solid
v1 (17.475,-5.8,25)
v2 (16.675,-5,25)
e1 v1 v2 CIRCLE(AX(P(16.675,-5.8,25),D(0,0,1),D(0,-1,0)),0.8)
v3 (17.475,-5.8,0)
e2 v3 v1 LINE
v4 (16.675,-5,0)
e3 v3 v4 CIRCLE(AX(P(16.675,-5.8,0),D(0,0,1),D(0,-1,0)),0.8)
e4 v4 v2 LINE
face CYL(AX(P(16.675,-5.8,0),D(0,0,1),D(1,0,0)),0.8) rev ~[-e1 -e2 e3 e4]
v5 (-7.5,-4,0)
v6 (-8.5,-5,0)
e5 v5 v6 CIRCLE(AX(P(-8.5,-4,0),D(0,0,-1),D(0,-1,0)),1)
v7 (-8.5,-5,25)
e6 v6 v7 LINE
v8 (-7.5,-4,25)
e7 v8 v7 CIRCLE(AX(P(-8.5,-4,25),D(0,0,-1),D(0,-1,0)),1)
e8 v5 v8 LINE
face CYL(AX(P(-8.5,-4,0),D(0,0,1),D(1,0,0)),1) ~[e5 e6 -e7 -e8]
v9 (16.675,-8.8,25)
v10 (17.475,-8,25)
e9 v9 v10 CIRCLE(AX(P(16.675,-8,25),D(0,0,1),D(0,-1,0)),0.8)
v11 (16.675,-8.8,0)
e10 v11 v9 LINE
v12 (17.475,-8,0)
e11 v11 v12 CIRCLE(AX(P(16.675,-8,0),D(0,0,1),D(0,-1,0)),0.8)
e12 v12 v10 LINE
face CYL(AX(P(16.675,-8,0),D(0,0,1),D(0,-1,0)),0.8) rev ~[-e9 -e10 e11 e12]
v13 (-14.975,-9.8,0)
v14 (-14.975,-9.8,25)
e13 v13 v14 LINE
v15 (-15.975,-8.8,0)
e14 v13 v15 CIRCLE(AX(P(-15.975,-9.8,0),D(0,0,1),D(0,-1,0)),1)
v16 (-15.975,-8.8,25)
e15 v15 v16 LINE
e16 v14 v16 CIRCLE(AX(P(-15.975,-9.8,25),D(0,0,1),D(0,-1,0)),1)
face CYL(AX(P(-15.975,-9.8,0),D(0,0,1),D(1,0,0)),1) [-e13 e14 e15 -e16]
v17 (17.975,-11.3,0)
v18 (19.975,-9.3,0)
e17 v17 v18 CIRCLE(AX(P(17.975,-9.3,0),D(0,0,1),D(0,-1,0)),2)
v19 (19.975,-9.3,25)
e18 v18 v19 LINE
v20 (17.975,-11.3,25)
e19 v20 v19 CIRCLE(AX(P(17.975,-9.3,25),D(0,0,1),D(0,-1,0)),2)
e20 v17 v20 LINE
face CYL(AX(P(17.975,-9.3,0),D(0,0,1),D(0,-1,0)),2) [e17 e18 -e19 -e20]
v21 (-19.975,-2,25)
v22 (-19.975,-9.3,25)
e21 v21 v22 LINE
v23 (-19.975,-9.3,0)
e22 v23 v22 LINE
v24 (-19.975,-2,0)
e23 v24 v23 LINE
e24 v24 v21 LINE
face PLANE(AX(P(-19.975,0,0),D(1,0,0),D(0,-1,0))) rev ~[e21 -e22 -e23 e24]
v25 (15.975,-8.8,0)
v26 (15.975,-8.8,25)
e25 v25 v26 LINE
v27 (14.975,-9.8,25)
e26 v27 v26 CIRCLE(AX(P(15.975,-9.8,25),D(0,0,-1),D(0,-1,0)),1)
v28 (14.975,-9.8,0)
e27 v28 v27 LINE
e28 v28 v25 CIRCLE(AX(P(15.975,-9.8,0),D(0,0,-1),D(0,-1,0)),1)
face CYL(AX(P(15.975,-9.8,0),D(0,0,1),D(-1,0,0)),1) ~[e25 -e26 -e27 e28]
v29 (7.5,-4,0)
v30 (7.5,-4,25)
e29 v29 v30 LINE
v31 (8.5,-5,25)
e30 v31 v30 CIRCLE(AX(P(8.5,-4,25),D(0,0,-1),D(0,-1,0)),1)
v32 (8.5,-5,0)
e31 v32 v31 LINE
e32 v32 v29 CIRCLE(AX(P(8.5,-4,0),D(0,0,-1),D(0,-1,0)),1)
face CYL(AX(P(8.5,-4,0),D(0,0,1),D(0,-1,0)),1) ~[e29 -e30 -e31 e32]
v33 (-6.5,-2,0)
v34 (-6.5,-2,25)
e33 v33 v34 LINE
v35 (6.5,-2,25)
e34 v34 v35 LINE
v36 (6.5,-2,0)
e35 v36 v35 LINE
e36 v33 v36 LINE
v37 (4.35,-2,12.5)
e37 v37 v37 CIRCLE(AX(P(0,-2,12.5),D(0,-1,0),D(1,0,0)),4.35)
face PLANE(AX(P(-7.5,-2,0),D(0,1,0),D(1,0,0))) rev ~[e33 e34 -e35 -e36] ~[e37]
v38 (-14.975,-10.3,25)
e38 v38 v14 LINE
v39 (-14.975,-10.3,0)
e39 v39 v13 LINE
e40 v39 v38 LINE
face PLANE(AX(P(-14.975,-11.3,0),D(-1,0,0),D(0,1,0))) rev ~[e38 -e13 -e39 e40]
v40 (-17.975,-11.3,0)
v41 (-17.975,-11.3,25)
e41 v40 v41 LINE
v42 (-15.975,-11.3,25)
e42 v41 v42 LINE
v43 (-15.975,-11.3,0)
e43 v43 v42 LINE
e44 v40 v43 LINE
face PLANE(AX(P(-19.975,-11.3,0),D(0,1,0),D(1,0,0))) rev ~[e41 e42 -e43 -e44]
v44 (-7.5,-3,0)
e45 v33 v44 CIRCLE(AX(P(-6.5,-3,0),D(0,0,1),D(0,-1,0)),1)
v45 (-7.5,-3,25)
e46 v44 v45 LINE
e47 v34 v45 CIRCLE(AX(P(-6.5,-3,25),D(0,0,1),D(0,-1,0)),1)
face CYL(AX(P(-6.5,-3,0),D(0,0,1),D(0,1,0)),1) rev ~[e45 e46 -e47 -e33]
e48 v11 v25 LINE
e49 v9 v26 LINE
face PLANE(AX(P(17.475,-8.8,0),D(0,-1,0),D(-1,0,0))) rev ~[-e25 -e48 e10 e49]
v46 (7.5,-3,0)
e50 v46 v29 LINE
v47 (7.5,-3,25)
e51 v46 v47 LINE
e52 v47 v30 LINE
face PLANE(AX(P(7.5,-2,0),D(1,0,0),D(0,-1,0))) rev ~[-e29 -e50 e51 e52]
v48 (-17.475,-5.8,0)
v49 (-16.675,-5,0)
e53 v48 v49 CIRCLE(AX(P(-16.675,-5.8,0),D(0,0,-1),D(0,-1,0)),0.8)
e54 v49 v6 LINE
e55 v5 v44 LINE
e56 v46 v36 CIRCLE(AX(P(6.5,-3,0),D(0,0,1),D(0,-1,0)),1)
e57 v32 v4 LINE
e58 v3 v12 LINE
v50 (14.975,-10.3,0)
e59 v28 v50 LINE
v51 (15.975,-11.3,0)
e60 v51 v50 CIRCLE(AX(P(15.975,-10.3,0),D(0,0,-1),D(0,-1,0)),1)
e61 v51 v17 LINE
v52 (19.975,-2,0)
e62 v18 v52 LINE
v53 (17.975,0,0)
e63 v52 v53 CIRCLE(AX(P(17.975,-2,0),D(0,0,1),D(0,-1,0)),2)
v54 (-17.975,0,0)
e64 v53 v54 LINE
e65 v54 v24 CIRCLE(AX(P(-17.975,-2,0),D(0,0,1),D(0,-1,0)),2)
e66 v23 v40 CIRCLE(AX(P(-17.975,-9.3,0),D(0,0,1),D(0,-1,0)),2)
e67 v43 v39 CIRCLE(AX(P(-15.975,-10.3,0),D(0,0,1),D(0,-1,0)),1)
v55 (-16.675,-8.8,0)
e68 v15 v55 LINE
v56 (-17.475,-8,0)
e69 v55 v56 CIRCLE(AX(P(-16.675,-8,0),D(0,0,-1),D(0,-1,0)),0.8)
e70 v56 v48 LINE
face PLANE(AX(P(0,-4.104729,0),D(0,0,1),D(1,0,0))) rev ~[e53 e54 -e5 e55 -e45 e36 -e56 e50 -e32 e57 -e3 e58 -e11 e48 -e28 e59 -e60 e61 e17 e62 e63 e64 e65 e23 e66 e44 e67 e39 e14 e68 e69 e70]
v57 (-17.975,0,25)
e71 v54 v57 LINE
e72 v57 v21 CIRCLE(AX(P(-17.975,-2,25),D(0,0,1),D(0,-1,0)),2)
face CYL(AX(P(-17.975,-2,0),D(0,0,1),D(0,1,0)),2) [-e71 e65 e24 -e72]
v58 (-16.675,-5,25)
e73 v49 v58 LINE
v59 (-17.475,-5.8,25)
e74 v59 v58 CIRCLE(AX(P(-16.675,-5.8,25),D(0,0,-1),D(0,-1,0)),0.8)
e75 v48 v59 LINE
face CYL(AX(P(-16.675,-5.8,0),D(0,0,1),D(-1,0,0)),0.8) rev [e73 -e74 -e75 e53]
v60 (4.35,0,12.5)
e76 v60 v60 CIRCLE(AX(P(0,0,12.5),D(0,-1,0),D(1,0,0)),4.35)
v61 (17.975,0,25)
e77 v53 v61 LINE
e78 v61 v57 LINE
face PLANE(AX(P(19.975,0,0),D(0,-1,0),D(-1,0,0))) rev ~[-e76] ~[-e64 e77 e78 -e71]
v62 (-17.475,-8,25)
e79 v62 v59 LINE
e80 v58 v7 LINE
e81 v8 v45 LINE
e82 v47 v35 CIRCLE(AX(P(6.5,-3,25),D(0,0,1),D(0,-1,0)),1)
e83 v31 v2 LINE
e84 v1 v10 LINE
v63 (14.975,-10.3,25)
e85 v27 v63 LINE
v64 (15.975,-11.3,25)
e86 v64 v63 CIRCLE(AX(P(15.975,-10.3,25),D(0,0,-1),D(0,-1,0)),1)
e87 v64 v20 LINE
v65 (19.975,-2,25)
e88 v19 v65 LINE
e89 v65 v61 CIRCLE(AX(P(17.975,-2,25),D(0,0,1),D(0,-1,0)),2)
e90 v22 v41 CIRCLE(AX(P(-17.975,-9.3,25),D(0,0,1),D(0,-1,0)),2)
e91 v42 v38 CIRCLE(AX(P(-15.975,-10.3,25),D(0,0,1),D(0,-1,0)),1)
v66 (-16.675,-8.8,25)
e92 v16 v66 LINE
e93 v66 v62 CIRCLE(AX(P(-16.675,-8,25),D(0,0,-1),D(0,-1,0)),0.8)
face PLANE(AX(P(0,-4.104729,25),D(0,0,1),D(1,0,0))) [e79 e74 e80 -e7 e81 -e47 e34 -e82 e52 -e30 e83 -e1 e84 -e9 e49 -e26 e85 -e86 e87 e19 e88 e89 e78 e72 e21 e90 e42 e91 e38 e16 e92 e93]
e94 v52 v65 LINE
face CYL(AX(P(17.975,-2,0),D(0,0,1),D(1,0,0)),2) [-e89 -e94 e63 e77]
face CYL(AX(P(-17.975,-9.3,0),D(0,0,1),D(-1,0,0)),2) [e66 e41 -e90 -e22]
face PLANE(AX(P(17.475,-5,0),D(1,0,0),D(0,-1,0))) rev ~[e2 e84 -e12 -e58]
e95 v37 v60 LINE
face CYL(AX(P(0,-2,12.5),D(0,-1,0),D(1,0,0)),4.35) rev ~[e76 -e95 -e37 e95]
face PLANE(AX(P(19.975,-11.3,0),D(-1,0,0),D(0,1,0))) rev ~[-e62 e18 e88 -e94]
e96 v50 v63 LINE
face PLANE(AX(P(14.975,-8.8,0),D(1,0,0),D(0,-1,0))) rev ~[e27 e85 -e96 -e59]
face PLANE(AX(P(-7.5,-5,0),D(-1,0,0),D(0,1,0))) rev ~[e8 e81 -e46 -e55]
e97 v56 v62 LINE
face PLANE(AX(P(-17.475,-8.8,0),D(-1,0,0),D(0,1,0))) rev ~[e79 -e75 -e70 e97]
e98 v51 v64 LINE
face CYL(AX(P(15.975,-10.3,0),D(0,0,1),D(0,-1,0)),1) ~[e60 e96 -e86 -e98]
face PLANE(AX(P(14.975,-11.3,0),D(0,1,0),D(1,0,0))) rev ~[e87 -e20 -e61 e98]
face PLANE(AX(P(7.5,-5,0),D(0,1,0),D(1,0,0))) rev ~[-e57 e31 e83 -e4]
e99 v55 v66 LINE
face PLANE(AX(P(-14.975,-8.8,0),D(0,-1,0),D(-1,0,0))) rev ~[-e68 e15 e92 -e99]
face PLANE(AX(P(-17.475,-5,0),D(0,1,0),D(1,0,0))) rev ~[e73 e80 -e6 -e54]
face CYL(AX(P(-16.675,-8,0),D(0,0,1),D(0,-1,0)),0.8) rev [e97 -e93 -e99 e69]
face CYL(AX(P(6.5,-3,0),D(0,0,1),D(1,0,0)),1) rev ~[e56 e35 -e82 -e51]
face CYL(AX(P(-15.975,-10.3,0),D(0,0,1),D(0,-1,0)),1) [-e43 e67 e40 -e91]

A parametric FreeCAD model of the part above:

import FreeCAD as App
import Part
import Sketcher


def edges_at(feature, points):
    """Names of the edges that pass closest to the given points."""
    edges = feature.Shape.Edges
    near = lambda p: min(range(len(edges)), key=lambda i: edges[i].distToShape(Part.Vertex(*p))[0])
    return sorted({f"Edge{near(p) + 1}" for p in points})


def add_polygon(sketch, points):
    """Adds a closed chain of lines whose ends are joined by coincident constraints."""
    first, n = sketch.GeometryCount, len(points)
    for a, b in zip(points, points[1:] + points[:1]):
        sketch.addGeometry(Part.LineSegment(App.Vector(*a, 0), App.Vector(*b, 0)), False)
    for i in range(n):
        sketch.addConstraint(Sketcher.Constraint("Coincident", first + i, 2, first + (i + 1) % n, 1))

doc = App.newDocument("Part")
params = doc.addObject("Spreadsheet::Sheet", "Params")
for row, (alias, value) in enumerate([
    ("sketch1_width", "15 mm"),
    ("sketch1_width2", "5 mm"),
    ("sketch1_height", "3 mm"),
    ("sketch1_width3", "2.5 mm"),
    ("sketch1_height2", "3.8 mm"),
    ("pad1_length", "25 mm"),
    ("fillet_radius", "2 mm"),
    ("fillet2_radius", "1 mm"),
    ("fillet3_radius", "0.8 mm"),
    ("sketch2_diameter", "8.7 mm"),
    ("pocket1_length", "25 mm"),
], start=1):
    params.set(f"A{row}", alias)
    params.set(f"B{row}", "=" + value)
    params.setAlias(f"B{row}", alias)

body = doc.addObject("PartDesign::Body", "Body")

# Sketch on XY plane
sketch1 = body.newObject("Sketcher::SketchObject", "Sketch")
sketch1.AttachmentSupport = (doc.getObject("XY_Plane"), [""])
sketch1.MapMode = "FlatFace"
add_polygon(sketch1, [(-14.975, -11.3), (-14.975, -8.8), (-17.475, -8.8), (-17.475, -5), (-7.5, -5), (-7.5, -2), (7.5, -2), (7.5, -5), (17.475, -5), (17.475, -8.8), (14.975, -8.8), (14.975, -11.3), (19.975, -11.3), (19.975, 0), (-19.975, 0), (-19.975, -11.3)])  # lines 0-15
sketch1.addConstraint([
    Sketcher.Constraint("Vertical", 0),
    Sketcher.Constraint("Horizontal", 1),
    Sketcher.Constraint("Vertical", 2),
    Sketcher.Constraint("Horizontal", 3),
    Sketcher.Constraint("Vertical", 4),
    Sketcher.Constraint("Horizontal", 5),
    Sketcher.Constraint("Vertical", 6),
    Sketcher.Constraint("Horizontal", 7),
    Sketcher.Constraint("Vertical", 8),
    Sketcher.Constraint("Horizontal", 9),
    Sketcher.Constraint("Vertical", 10),
    Sketcher.Constraint("Horizontal", 11),
    Sketcher.Constraint("Vertical", 12),
    Sketcher.Constraint("Horizontal", 13),
    Sketcher.Constraint("Vertical", 14),
    Sketcher.Constraint("Horizontal", 15),
    Sketcher.Constraint("Symmetric", 12, 2, 13, 2, -1, 1),
    Sketcher.Constraint("Symmetric", 3, 2, 6, 2, -2),
    Sketcher.Constraint("Symmetric", 1, 2, 8, 2, -2),
    Sketcher.Constraint("Symmetric", 10, 2, 15, 2, -2),
    Sketcher.Constraint("Equal", 9, 0),
    Sketcher.Constraint("DistanceX", 5, 1, 5, 2, 15.0),
    Sketcher.Constraint("DistanceX", 11, 1, 11, 2, 5.0),
    Sketcher.Constraint("DistanceY", 4, 1, 4, 2, 3.0),
    Sketcher.Constraint("DistanceX", 1, 2, 1, 1, 2.5),
    Sketcher.Constraint("DistanceY", 2, 1, 2, 2, 3.8),
    Sketcher.Constraint("DistanceY", 12, 1, 12, 2, 11.3),
    Sketcher.Constraint("DistanceX", 13, 2, 13, 1, 39.95),
])
sketch1.setExpression("Constraints[37]", "Params.sketch1_width")
sketch1.setExpression("Constraints[38]", "Params.sketch1_width2")
sketch1.setExpression("Constraints[39]", "Params.sketch1_height")
sketch1.setExpression("Constraints[40]", "Params.sketch1_width3")
sketch1.setExpression("Constraints[41]", "Params.sketch1_height2")
pad1 = body.newObject("PartDesign::Pad", "Pad")
pad1.Profile = sketch1
pad1.setExpression("Length", "Params.pad1_length")
doc.recompute()

fillet = body.newObject("PartDesign::Fillet", "Fillet")
fillet.Base = (pad1, edges_at(pad1, [
    (-19.975, 0, 12.5),
    (19.975, 0, 12.5),
    (-19.975, -11.3, 12.5),
    (19.975, -11.3, 12.5),
]))
fillet.setExpression("Radius", "Params.fillet_radius")
doc.recompute()

fillet2 = body.newObject("PartDesign::Fillet", "Fillet001")
fillet2.Base = (fillet, edges_at(fillet, [
    (7.5, -2, 12.5),
    (-7.5, -2, 12.5),
    (7.5, -5, 12.5),
    (-7.5, -5, 12.5),
    (-14.975, -11.3, 12.5),
    (-14.975, -8.8, 12.5),
    (14.975, -8.8, 12.5),
    (14.975, -11.3, 12.5),
]))
fillet2.setExpression("Radius", "Params.fillet2_radius")
doc.recompute()

fillet3 = body.newObject("PartDesign::Fillet", "Fillet002")
fillet3.Base = (fillet2, edges_at(fillet2, [
    (17.475, -5, 12.5),
    (-17.475, -5, 12.5),
    (-17.475, -8.8, 12.5),
    (17.475, -8.8, 12.5),
]))
fillet3.setExpression("Radius", "Params.fillet3_radius")

# Sketch on XZ plane
sketch2 = body.newObject("Sketcher::SketchObject", "Sketch001")
sketch2.AttachmentSupport = (doc.getObject("XZ_Plane"), [""])
sketch2.MapMode = "FlatFace"
sketch2.AttachmentOffset = App.Placement(App.Vector(0, 0, 2), App.Rotation())
sketch2.addGeometry(Part.Circle(App.Vector(0, 12.5, 0), App.Vector(0, 0, 1), 4.35), False)
sketch2.addConstraint([
    Sketcher.Constraint("PointOnObject", 0, 3, -2),
    Sketcher.Constraint("Diameter", 0, 8.7),
    Sketcher.Constraint("DistanceY", -1, 1, 0, 3, 12.5),
])
sketch2.setExpression("Constraints[1]", "Params.sketch2_diameter")
pocket1 = body.newObject("PartDesign::Pocket", "Pocket")
pocket1.Profile = sketch2
pocket1.setExpression("Length", "Params.pocket1_length")

doc.recompute()
